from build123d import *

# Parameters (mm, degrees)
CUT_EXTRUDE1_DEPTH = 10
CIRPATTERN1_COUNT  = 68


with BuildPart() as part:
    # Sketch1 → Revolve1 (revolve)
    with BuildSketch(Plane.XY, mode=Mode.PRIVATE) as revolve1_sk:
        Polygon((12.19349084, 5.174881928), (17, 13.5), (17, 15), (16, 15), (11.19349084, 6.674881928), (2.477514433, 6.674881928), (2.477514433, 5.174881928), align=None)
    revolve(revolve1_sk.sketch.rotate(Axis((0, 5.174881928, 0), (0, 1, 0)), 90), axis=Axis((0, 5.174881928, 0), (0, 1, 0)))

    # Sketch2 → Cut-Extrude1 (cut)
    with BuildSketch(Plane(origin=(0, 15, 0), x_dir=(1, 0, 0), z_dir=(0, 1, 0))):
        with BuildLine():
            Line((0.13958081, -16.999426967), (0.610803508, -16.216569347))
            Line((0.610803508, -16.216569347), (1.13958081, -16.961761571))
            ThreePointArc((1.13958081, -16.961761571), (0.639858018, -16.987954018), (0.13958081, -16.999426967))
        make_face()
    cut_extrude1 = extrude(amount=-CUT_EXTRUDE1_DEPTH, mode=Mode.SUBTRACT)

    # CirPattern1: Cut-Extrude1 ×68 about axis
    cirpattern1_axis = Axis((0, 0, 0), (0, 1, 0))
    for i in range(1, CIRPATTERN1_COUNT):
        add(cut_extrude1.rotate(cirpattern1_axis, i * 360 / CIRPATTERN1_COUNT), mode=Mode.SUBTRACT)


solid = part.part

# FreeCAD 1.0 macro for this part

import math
import FreeCAD as App
import Part
import Sketcher
Q = App.Units.Quantity


def add_polygon(sketch, points):
    """Adds a closed chain of lines whose ends are joined by coincident constraints."""
    first, n = sketch.GeometryCount, len(points)
    for a, b in zip(points, points[1:] + points[:1]):
        sketch.addGeometry(Part.LineSegment(App.Vector(*a, 0), App.Vector(*b, 0)), False)
    for i in range(n):
        sketch.addConstraint(Sketcher.Constraint("Coincident", first + i, 2, first + (i + 1) % n, 1))

doc = App.newDocument("Part")
body = doc.addObject("PartDesign::Body", "Body")

sketch1 = body.newObject("Sketcher::SketchObject", "Sketch")
sketch1.AttachmentSupport = (doc.getObject("XY_Plane"), [""])
sketch1.MapMode = "FlatFace"
add_polygon(sketch1, [(12.2, 5.2), (17, 13.5), (17, 15), (16, 15), (11.2, 6.7), (2.5, 6.7), (2.5, 5.2)])
sketch1.addConstraint([
    Sketcher.Constraint("Vertical", 1),
    Sketcher.Constraint("Horizontal", 2),
    Sketcher.Constraint("Horizontal", 4),
    Sketcher.Constraint("Vertical", 5),
    Sketcher.Constraint("Horizontal", 6),
    Sketcher.Constraint("Parallel", 0, 3),
    Sketcher.Constraint("Equal", 1, 5),
    Sketcher.Constraint("DistanceX", 2, 2, 2, 1, Q("1 mm")),
    Sketcher.Constraint("Angle", 0, Q("60 deg")),
    Sketcher.Constraint("DistanceY", 1, 1, 1, 2, Q("1.5 mm")),
    Sketcher.Constraint("DistanceX", -1, 1, 0, 2, Q("17 mm")),
    Sketcher.Constraint("DistanceY", -1, 1, 1, 2, Q("15 mm")),
    Sketcher.Constraint("Distance", 0, Q("9.613018 mm")),
    Sketcher.Constraint("DistanceX", 4, 2, 4, 1, Q("8.715976 mm")),
])
revolution = body.newObject("PartDesign::Revolution", "Revolution")
revolution.Profile = sketch1
revolution.ReferenceAxis = (sketch1, ["V_Axis"])
revolution.Angle = 360

sketch2 = body.newObject("Sketcher::SketchObject", "Sketch001")
sketch2.AttachmentSupport = (doc.getObject("XZ_Plane"), [""])
sketch2.MapMode = "FlatFace"
sketch2.AttachmentOffset = App.Placement(App.Vector(0, 0, -15), App.Rotation())
sketch2.addGeometry([
    Part.LineSegment(App.Vector(0.6, 16.2, 0), App.Vector(0.1, 17, 0)),
    Part.ArcOfCircle(Part.Circle(App.Vector(0, 0, 0), App.Vector(0, 0, 1), 17), math.radians(86.16), math.radians(89.53)),
    Part.LineSegment(App.Vector(1.1, 17, 0), App.Vector(0.6, 16.2, 0)),
], False)
sketch2.addConstraint([
    Sketcher.Constraint("Coincident", 0, 2, 1, 2),
    Sketcher.Constraint("Coincident", 1, 1, 2, 1),
    Sketcher.Constraint("Coincident", 2, 2, 0, 1),
    Sketcher.Constraint("Coincident", 1, 3, -1, 1),
    Sketcher.Constraint("Equal", 0, 2),
    Sketcher.Constraint("Radius", 1, Q("17.000001 mm")),
    Sketcher.Constraint("DistanceX", 0, 2, 1, 1, Q("1 mm")),
    Sketcher.Constraint("DistanceX", -1, 1, 0, 2, Q("0.139581 mm")),
    Sketcher.Constraint("DistanceY", -1, 1, 2, 2, Q("16.216569 mm")),
])
pocket1 = body.newObject("PartDesign::Pocket", "Pocket")
pocket1.Profile = sketch2
pocket1.Length = 10
pocket1.Reversed = True
doc.recompute()

polarpattern = body.newObject("PartDesign::PolarPattern", "PolarPattern")
polarpattern.Originals = [pocket1]
polarpattern.Axis = (doc.getObject("Y_Axis"), [""])
polarpattern.Angle = 360
polarpattern.Occurrences = 68
body.Tip = polarpattern

doc.recompute()
